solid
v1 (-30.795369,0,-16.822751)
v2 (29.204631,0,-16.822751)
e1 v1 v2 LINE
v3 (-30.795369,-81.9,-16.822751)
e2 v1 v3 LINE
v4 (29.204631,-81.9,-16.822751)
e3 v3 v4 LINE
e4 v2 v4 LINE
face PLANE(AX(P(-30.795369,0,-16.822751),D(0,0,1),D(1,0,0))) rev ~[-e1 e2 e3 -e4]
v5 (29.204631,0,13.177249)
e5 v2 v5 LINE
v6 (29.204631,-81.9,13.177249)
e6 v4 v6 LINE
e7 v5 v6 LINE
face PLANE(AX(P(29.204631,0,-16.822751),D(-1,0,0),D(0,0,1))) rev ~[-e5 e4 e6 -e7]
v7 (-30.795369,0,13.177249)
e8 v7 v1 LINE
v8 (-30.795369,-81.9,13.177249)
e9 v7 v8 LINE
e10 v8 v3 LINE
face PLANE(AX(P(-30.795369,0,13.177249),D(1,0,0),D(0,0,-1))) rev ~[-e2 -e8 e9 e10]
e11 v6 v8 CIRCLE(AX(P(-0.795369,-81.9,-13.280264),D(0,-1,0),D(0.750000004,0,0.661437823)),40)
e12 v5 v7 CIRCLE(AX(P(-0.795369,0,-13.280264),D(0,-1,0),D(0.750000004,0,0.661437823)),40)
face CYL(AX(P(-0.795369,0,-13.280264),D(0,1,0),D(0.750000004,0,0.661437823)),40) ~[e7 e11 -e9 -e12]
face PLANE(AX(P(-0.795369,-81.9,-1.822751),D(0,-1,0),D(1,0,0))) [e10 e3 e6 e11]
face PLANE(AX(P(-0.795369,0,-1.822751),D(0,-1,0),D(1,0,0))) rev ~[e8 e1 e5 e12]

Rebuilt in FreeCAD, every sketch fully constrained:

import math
import FreeCAD as App
import Part
import Sketcher

V = App.Vector
Q = App.Units.Quantity

doc = App.newDocument("Part")
body = doc.addObject("PartDesign::Body", "Body")

sketch1 = doc.addObject("Sketcher::SketchObject", "Sketch")
body.addObject(sketch1)
sketch1.AttachmentSupport = (doc.XZ_Plane, [""])
sketch1.MapMode = "FlatFace"
sketch1.addGeometry([
    Part.LineSegment(V(-31, 13, 0), V(-31, -17, 0)),
    Part.LineSegment(V(-31, -17, 0), V(29, -17, 0)),
    Part.LineSegment(V(29, -17, 0), V(29, 13, 0)),
    Part.ArcOfCircle(Part.Circle(V(-1, -13, 0), V(0, 0, 1), 40), math.radians(41), math.radians(139)),
], False)
sketch1.addConstraint([
    Sketcher.Constraint("Coincident", 0, 2, 1, 1),
    Sketcher.Constraint("Coincident", 1, 2, 2, 1),
    Sketcher.Constraint("Coincident", 2, 2, 3, 1),
    Sketcher.Constraint("Coincident", 3, 2, 0, 1),
    Sketcher.Constraint("Vertical", 0),
    Sketcher.Constraint("Horizontal", 1),
    Sketcher.Constraint("Vertical", 2),
    Sketcher.Constraint("Horizontal", 2, 2, 3, 2),
    Sketcher.Constraint("Radius", 3, Q("40 mm")),
    Sketcher.Constraint("DistanceX", 1, 1, 1, 2, Q("60 mm")),
    Sketcher.Constraint("DistanceY", 0, 2, 0, 1, Q("30 mm")),
    Sketcher.Constraint("DistanceX", 3, 3, -1, 1, Q("0.795369 mm")),
    Sketcher.Constraint("DistanceY", 0, 2, -1, 1, Q("16.822751 mm")),
])
pad1 = doc.addObject("PartDesign::Pad", "Pad")
body.addObject(pad1)
pad1.Profile = sketch1
pad1.Length = 81.9

doc.recompute()
